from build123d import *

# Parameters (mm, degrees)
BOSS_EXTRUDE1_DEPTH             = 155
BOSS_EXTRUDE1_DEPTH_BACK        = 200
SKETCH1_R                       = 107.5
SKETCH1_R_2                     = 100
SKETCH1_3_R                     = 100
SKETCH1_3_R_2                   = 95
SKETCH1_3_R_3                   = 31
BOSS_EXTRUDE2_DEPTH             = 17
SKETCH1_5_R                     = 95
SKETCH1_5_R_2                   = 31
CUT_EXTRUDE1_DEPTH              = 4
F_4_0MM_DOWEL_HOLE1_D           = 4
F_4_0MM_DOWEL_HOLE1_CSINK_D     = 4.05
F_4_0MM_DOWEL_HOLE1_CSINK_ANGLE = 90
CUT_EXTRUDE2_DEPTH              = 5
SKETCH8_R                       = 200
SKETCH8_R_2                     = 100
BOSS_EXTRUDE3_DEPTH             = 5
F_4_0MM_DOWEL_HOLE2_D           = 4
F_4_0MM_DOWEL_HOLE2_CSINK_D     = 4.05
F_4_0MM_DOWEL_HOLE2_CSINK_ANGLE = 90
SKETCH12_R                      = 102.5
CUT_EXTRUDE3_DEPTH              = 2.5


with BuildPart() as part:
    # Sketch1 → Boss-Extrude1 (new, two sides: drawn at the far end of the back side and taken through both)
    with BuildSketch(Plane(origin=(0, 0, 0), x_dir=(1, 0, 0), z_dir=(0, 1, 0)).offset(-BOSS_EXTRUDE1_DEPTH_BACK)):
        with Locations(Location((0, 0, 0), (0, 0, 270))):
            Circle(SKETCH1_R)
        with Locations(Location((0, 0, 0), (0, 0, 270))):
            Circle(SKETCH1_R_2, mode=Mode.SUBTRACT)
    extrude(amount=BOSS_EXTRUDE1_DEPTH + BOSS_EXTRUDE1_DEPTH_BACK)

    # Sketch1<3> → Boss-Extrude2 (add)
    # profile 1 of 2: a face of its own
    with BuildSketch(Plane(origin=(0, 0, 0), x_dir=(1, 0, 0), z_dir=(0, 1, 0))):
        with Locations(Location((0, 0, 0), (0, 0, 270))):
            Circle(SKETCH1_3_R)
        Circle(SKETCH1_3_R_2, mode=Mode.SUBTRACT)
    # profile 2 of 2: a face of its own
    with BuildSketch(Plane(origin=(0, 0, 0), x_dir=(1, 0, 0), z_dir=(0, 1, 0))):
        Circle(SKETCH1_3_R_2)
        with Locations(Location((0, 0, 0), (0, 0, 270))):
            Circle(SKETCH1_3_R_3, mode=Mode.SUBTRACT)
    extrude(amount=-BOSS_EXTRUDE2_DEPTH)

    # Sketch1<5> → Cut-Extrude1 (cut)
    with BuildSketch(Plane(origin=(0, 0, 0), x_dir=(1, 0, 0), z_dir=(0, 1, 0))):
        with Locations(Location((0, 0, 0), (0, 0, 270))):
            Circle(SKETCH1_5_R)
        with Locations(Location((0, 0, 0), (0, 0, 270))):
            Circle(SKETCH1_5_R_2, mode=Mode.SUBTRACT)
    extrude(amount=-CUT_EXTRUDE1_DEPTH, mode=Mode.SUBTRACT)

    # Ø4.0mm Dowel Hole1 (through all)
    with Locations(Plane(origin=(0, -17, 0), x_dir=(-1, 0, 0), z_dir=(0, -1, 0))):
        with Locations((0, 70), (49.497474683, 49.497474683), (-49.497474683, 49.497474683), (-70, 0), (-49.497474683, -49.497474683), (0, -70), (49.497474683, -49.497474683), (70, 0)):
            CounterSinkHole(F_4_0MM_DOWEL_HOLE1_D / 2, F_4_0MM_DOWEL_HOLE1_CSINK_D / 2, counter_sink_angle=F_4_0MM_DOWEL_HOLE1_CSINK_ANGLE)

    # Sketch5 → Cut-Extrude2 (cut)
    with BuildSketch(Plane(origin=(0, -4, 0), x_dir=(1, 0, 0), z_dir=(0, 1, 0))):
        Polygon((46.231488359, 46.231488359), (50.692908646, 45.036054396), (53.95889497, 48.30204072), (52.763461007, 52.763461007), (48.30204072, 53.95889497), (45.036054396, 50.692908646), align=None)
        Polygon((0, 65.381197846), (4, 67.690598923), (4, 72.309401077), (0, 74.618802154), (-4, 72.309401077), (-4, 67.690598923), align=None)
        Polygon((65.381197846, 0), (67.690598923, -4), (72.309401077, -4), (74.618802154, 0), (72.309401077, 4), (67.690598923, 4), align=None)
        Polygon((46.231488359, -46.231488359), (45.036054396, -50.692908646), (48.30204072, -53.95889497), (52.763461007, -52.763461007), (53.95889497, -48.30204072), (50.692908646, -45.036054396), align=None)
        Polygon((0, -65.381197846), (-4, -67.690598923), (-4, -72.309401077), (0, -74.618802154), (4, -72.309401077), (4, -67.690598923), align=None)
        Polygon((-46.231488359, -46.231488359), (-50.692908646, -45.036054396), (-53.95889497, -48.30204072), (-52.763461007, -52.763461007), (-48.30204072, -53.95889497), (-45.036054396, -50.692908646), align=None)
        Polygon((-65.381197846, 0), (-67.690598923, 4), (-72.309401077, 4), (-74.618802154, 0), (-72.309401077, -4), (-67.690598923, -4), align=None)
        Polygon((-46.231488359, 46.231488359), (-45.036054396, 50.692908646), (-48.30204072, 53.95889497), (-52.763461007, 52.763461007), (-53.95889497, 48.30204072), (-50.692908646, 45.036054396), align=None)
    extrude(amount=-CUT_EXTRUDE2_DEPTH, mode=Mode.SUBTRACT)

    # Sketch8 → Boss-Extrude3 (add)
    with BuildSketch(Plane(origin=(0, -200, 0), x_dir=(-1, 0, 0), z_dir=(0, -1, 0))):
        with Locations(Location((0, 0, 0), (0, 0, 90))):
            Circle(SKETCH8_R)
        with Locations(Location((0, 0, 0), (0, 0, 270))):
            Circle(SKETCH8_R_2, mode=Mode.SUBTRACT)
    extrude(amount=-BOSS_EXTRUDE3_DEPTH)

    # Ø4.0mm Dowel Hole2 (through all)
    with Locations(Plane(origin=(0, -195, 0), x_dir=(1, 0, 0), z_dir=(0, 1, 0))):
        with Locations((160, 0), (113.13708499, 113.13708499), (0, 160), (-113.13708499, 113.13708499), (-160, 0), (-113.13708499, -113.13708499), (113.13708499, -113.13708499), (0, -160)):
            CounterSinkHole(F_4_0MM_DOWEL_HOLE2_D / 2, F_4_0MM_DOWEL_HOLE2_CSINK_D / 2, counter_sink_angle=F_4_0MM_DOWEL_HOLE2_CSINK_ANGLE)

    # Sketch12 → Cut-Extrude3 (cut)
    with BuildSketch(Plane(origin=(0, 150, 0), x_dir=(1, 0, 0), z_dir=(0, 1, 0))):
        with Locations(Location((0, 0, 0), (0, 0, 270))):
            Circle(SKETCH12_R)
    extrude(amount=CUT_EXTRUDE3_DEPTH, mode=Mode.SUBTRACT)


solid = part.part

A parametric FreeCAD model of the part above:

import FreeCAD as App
import Part
import Sketcher

V = App.Vector
Q = App.Units.Quantity


def add_polygon(sketch, points):
    """Adds a closed chain of lines whose ends are joined by coincident constraints."""
    first, n = sketch.GeometryCount, len(points)
    for a, b in zip(points, points[1:] + points[:1]):
        sketch.addGeometry(Part.LineSegment(App.Vector(*a, 0), App.Vector(*b, 0)), False)
    for i in range(n):
        sketch.addConstraint(Sketcher.Constraint("Coincident", first + i, 2, first + (i + 1) % n, 1))

doc = App.newDocument("Part")
params = doc.addObject("Spreadsheet::Sheet", "Params")
for row, (alias, value) in enumerate([
    ("sketch1_diameter", "215 mm"),
    ("sketch1_diameter2", "200 mm"),
    ("pad1_length", "155 mm"),
    ("pad1_length2", "200 mm"),
    ("sketch2_diameter", "200 mm"),
    ("sketch2_diameter2", "62 mm"),
    ("pad2_length", "17 mm"),
    ("sketch3_diameter", "190 mm"),
    ("sketch3_diameter2", "62 mm"),
    ("pocket1_length", "4 mm"),
    ("sketch4_diameter", "4 mm"),
    ("hole_diameter", "4 mm"),
    ("hole_csink_diameter", "4.05 mm"),
    ("pocket2_length", "5 mm"),
    ("sketch6_diameter", "400 mm"),
    ("sketch6_diameter2", "200 mm"),
    ("pad3_length", "5 mm"),
    ("sketch7_diameter", "4 mm"),
    ("hole2_diameter", "4 mm"),
    ("hole2_csink_diameter", "4.05 mm"),
    ("sketch8_diameter", "205 mm"),
    ("pocket3_length", "2.5 mm"),
], start=1):
    params.set(f"A{row}", alias)
    params.set(f"B{row}", "=" + value)
    params.setAlias(f"B{row}", alias)

body = doc.addObject("PartDesign::Body", "Body")

sketch1 = body.newObject("Sketcher::SketchObject", "Sketch")
sketch1.AttachmentSupport = (doc.getObject("XZ_Plane"), [""])
sketch1.MapMode = "FlatFace"
sketch1.addGeometry(Part.Circle(V(0, 0, 0), V(0, 0, 1), 108), False)
sketch1.addGeometry(Part.Circle(V(0, 0, 0), V(0, 0, 1), 100), False)
sketch1.addConstraint(Sketcher.Constraint("Coincident", 0, 3, -1, 1))
sketch1.addConstraint(Sketcher.Constraint("Coincident", 1, 3, -1, 1))
sketch1.addConstraint(Sketcher.Constraint("Diameter", 0, 215.0))
sketch1.addConstraint(Sketcher.Constraint("Diameter", 1, 200.0))
sketch1.setExpression("Constraints[2]", "Params.sketch1_diameter")
sketch1.setExpression("Constraints[3]", "Params.sketch1_diameter2")
pad1 = body.newObject("PartDesign::Pad", "Pad")
pad1.Profile = sketch1
pad1.Type = "TwoLengths"
pad1.setExpression("Length", "Params.pad1_length")
pad1.setExpression("Length2", "Params.pad1_length2")
pad1.Reversed = True

sketch2 = body.newObject("Sketcher::SketchObject", "Sketch001")
sketch2.AttachmentSupport = (doc.getObject("XZ_Plane"), [""])
sketch2.MapMode = "FlatFace"
sketch2.addGeometry(Part.Circle(V(0, 0, 0), V(0, 0, 1), 100), False)
sketch2.addGeometry(Part.Circle(V(0, 0, 0), V(0, 0, 1), 31), False)
sketch2.addConstraint(Sketcher.Constraint("Coincident", 0, 3, -1, 1))
sketch2.addConstraint(Sketcher.Constraint("Coincident", 1, 3, -1, 1))
sketch2.addConstraint(Sketcher.Constraint("Diameter", 0, 200.0))
sketch2.addConstraint(Sketcher.Constraint("Diameter", 1, 62.0))
sketch2.setExpression("Constraints[2]", "Params.sketch2_diameter")
sketch2.setExpression("Constraints[3]", "Params.sketch2_diameter2")
pad2 = body.newObject("PartDesign::Pad", "Pad001")
pad2.Profile = sketch2
pad2.setExpression("Length", "Params.pad2_length")

sketch3 = body.newObject("Sketcher::SketchObject", "Sketch002")
sketch3.AttachmentSupport = (doc.getObject("XZ_Plane"), [""])
sketch3.MapMode = "FlatFace"
sketch3.addGeometry(Part.Circle(V(0, 0, 0), V(0, 0, 1), 95), False)
sketch3.addGeometry(Part.Circle(V(0, 0, 0), V(0, 0, 1), 31), False)
sketch3.addConstraint(Sketcher.Constraint("Coincident", 0, 3, -1, 1))
sketch3.addConstraint(Sketcher.Constraint("Coincident", 1, 3, -1, 1))
sketch3.addConstraint(Sketcher.Constraint("Diameter", 0, 190.0))
sketch3.addConstraint(Sketcher.Constraint("Diameter", 1, 62.0))
sketch3.setExpression("Constraints[2]", "Params.sketch3_diameter")
sketch3.setExpression("Constraints[3]", "Params.sketch3_diameter2")
pocket1 = body.newObject("PartDesign::Pocket", "Pocket")
pocket1.Profile = sketch3
pocket1.setExpression("Length", "Params.pocket1_length")
pocket1.Reversed = True

sketch4 = body.newObject("Sketcher::SketchObject", "Sketch003")
sketch4.AttachmentSupport = (doc.getObject("XZ_Plane"), [""])
sketch4.MapMode = "FlatFace"
sketch4.AttachmentOffset = App.Placement(V(0, 0, 17), App.Rotation())
sketch4.addGeometry(Part.Circle(V(0, -70, 0), V(0, 0, 1), 2), False)
sketch4.addGeometry(Part.Circle(V(-49.5, -49.5, 0), V(0, 0, 1), 2), False)
sketch4.addGeometry(Part.Circle(V(49.5, -49.5, 0), V(0, 0, 1), 2), False)
sketch4.addGeometry(Part.Circle(V(70, 0, 0), V(0, 0, 1), 2), False)
sketch4.addGeometry(Part.Circle(V(49.5, 49.5, 0), V(0, 0, 1), 2), False)
sketch4.addGeometry(Part.Circle(V(0, 70, 0), V(0, 0, 1), 2), False)
sketch4.addGeometry(Part.Circle(V(-49.5, 49.5, 0), V(0, 0, 1), 2), False)
sketch4.addGeometry(Part.Circle(V(-70, 0, 0), V(0, 0, 1), 2), False)
sketch4.addConstraint(Sketcher.Constraint("Equal", 0, 1))
sketch4.addConstraint(Sketcher.Constraint("Equal", 1, 2))
sketch4.addConstraint(Sketcher.Constraint("Equal", 2, 3))
sketch4.addConstraint(Sketcher.Constraint("Equal", 3, 4))
sketch4.addConstraint(Sketcher.Constraint("Equal", 4, 5))
sketch4.addConstraint(Sketcher.Constraint("Equal", 5, 6))
sketch4.addConstraint(Sketcher.Constraint("Equal", 6, 7))
sketch4.addConstraint(Sketcher.Constraint("Symmetric", 1, 3, 4, 3, -1, 1))
sketch4.addConstraint(Sketcher.Constraint("Symmetric", 0, 3, 5, 3, -1, 1))
sketch4.addConstraint(Sketcher.Constraint("Symmetric", 2, 3, 6, 3, -1, 1))
sketch4.addConstraint(Sketcher.Constraint("Symmetric", 3, 3, 7, 3, -1, 1))
sketch4.addConstraint(Sketcher.Constraint("Symmetric", 1, 3, 2, 3, -2))
sketch4.addConstraint(Sketcher.Constraint("PointOnObject", 0, 3, -2))
sketch4.addConstraint(Sketcher.Constraint("PointOnObject", 3, 3, -1))
sketch4.addConstraint(Sketcher.Constraint("Diameter", 0, 4.0))
sketch4.addConstraint(Sketcher.Constraint("DistanceY", 0, 3, -1, 1, 70.0))
sketch4.addConstraint(Sketcher.Constraint("DistanceX", -1, 1, 3, 3, 70.0))
sketch4.addConstraint(Sketcher.Constraint("DistanceX", 1, 3, 2, 3, 98.994949))
sketch4.addConstraint(Sketcher.Constraint("DistanceY", 2, 3, 4, 3, 98.994949))
sketch4.setExpression("Constraints[14]", "Params.sketch4_diameter")
doc.recompute()
hole = body.newObject("PartDesign::Hole", "Hole")
hole.Profile = sketch4
hole.ThreadType = "None"
hole.setExpression("Diameter", "Params.hole_diameter")
hole.DepthType = "ThroughAll"
hole.HoleCutType = "Countersink"
hole.setExpression("HoleCutDiameter", "Params.hole_csink_diameter")
hole.HoleCutCountersinkAngle = 90

sketch5 = body.newObject("Sketcher::SketchObject", "Sketch004")
sketch5.AttachmentSupport = (doc.getObject("XZ_Plane"), [""])
sketch5.MapMode = "FlatFace"
sketch5.AttachmentOffset = App.Placement(V(0, 0, 4), App.Rotation())
add_polygon(sketch5, [(46.2, -46.2), (50.7, -45), (54, -48.3), (52.8, -52.8), (48.3, -54), (45, -50.7)])
add_polygon(sketch5, [(0, -65.4), (4, -67.7), (4, -72.3), (0, -74.6), (-4, -72.3), (-4, -67.7)])
add_polygon(sketch5, [(65.4, 0), (67.7, 4), (72.3, 4), (74.6, 0), (72.3, -4), (67.7, -4)])
add_polygon(sketch5, [(46.2, 46.2), (45, 50.7), (48.3, 54), (52.8, 52.8), (54, 48.3), (50.7, 45)])
add_polygon(sketch5, [(0, 65.4), (-4, 67.7), (-4, 72.3), (0, 74.6), (4, 72.3), (4, 67.7)])
add_polygon(sketch5, [(-46.2, 46.2), (-50.7, 45), (-54, 48.3), (-52.8, 52.8), (-48.3, 54), (-45, 50.7)])
add_polygon(sketch5, [(-65.4, 0), (-67.7, -4), (-72.3, -4), (-74.6, 0), (-72.3, 4), (-67.7, 4)])
add_polygon(sketch5, [(-46.2, -46.2), (-45, -50.7), (-48.3, -54), (-52.8, -52.8), (-54, -48.3), (-50.7, -45)])
sketch5.addConstraint(Sketcher.Constraint("Vertical", 7))
sketch5.addConstraint(Sketcher.Constraint("Vertical", 10))
sketch5.addConstraint(Sketcher.Constraint("Horizontal", 13))
sketch5.addConstraint(Sketcher.Constraint("Horizontal", 16))
sketch5.addConstraint(Sketcher.Constraint("Vertical", 25))
sketch5.addConstraint(Sketcher.Constraint("Vertical", 28))
sketch5.addConstraint(Sketcher.Constraint("Horizontal", 37))
sketch5.addConstraint(Sketcher.Constraint("Horizontal", 40))
sketch5.addConstraint(Sketcher.Constraint("Symmetric", 6, 2, 24, 2, -1, 1))
sketch5.addConstraint(Sketcher.Constraint("Symmetric", 8, 2, 26, 2, -1, 1))
sketch5.addConstraint(Sketcher.Constraint("Symmetric", 9, 2, 27, 2, -1, 1))
sketch5.addConstraint(Sketcher.Constraint("Symmetric", 11, 2, 29, 2, -1, 1))
sketch5.addConstraint(Sketcher.Constraint("Symmetric", 0, 2, 30, 2, -1, 1))
sketch5.addConstraint(Sketcher.Constraint("Symmetric", 1, 2, 31, 2, -1, 1))
sketch5.addConstraint(Sketcher.Constraint("Symmetric", 2, 2, 32, 2, -1, 1))
sketch5.addConstraint(Sketcher.Constraint("Symmetric", 3, 2, 33, 2, -1, 1))
sketch5.addConstraint(Sketcher.Constraint("Symmetric", 4, 2, 34, 2, -1, 1))
sketch5.addConstraint(Sketcher.Constraint("Symmetric", 5, 2, 35, 2, -1, 1))
sketch5.addConstraint(Sketcher.Constraint("Symmetric", 12, 2, 36, 2, -1, 1))
sketch5.addConstraint(Sketcher.Constraint("Symmetric", 14, 2, 38, 2, -1, 1))
sketch5.addConstraint(Sketcher.Constraint("Symmetric", 15, 2, 39, 2, -1, 1))
sketch5.addConstraint(Sketcher.Constraint("Symmetric", 17, 2, 41, 2, -1, 1))
sketch5.addConstraint(Sketcher.Constraint("Symmetric", 18, 2, 42, 2, -1, 1))
sketch5.addConstraint(Sketcher.Constraint("Symmetric", 19, 2, 43, 2, -1, 1))
sketch5.addConstraint(Sketcher.Constraint("Symmetric", 20, 2, 44, 2, -1, 1))
sketch5.addConstraint(Sketcher.Constraint("Symmetric", 21, 2, 45, 2, -1, 1))
sketch5.addConstraint(Sketcher.Constraint("Symmetric", 22, 2, 46, 2, -1, 1))
sketch5.addConstraint(Sketcher.Constraint("Symmetric", 23, 2, 47, 2, -1, 1))
sketch5.addConstraint(Sketcher.Constraint("Symmetric", 7, 2, 9, 2, -2))
sketch5.addConstraint(Sketcher.Constraint("Symmetric", 22, 2, 30, 2, -2))
sketch5.addConstraint(Sketcher.Constraint("Symmetric", 21, 2, 31, 2, -2))
sketch5.addConstraint(Sketcher.Constraint("Symmetric", 20, 2, 32, 2, -2))
sketch5.addConstraint(Sketcher.Constraint("Symmetric", 19, 2, 33, 2, -2))
sketch5.addConstraint(Sketcher.Constraint("Symmetric", 18, 2, 34, 2, -2))
sketch5.addConstraint(Sketcher.Constraint("Symmetric", 23, 2, 35, 2, -2))
sketch5.addConstraint(Sketcher.Constraint("Symmetric", 16, 2, 36, 2, -2))
sketch5.addConstraint(Sketcher.Constraint("PointOnObject", 8, 2, -2))
sketch5.addConstraint(Sketcher.Constraint("PointOnObject", 11, 2, -2))
sketch5.addConstraint(Sketcher.Constraint("PointOnObject", 14, 2, -1))
sketch5.addConstraint(Sketcher.Constraint("PointOnObject", 17, 2, -1))
sketch5.addConstraint(Sketcher.Constraint("Parallel", 0, 3))
sketch5.addConstraint(Sketcher.Constraint("Parallel", 1, 4))
sketch5.addConstraint(Sketcher.Constraint("Parallel", 2, 5))
sketch5.addConstraint(Sketcher.Constraint("Parallel", 6, 9))
sketch5.addConstraint(Sketcher.Constraint("Parallel", 8, 11))
sketch5.addConstraint(Sketcher.Constraint("Perpendicular", 9, 12))
sketch5.addConstraint(Sketcher.Constraint("Perpendicular", 11, 14))
sketch5.addConstraint(Sketcher.Constraint("Parallel", 12, 15))
sketch5.addConstraint(Sketcher.Constraint("Perpendicular", 3, 18))
sketch5.addConstraint(Sketcher.Constraint("Perpendicular", 4, 19))
sketch5.addConstraint(Sketcher.Constraint("Perpendicular", 17, 26))
sketch5.addConstraint(Sketcher.Constraint("Parallel", 26, 29))
sketch5.addConstraint(Sketcher.Constraint("Perpendicular", 29, 38))
sketch5.addConstraint(Sketcher.Constraint("Parallel", 38, 41))
sketch5.addConstraint(Sketcher.Constraint("Equal", 40, 7))
sketch5.addConstraint(Sketcher.Constraint("Equal", 0, 1))
sketch5.addConstraint(Sketcher.Constraint("Equal", 1, 2))
sketch5.addConstraint(Sketcher.Constraint("Equal", 2, 3))
sketch5.addConstraint(Sketcher.Constraint("Equal", 5, 6))
sketch5.addConstraint(Sketcher.Constraint("Equal", 11, 12))
sketch5.addConstraint(Sketcher.Constraint("Angle", 0, Q("15 deg")))
sketch5.addConstraint(Sketcher.Constraint("Angle", 6, Q("-30 deg")))
sketch5.addConstraint(Sketcher.Constraint("DistanceX", -1, 1, 6, 2, 4.0))
sketch5.addConstraint(Sketcher.Constraint("DistanceY", 6, 2, -1, 1, 67.690599))
sketch5.addConstraint(Sketcher.Constraint("DistanceY", 7, 2, -1, 1, 72.309401))
sketch5.addConstraint(Sketcher.Constraint("DistanceX", -1, 1, 12, 2, 67.690599))
sketch5.addConstraint(Sketcher.Constraint("DistanceX", -1, 1, 0, 2, 50.692909))
sketch5.addConstraint(Sketcher.Constraint("DistanceY", 1, 2, -1, 1, 48.302041))
pocket2 = body.newObject("PartDesign::Pocket", "Pocket001")
pocket2.Profile = sketch5
pocket2.setExpression("Length", "Params.pocket2_length")
pocket2.Reversed = True

sketch6 = body.newObject("Sketcher::SketchObject", "Sketch005")
sketch6.AttachmentSupport = (doc.getObject("XZ_Plane"), [""])
sketch6.MapMode = "FlatFace"
sketch6.AttachmentOffset = App.Placement(V(0, 0, 200), App.Rotation())
sketch6.addGeometry(Part.Circle(V(0, 0, 0), V(0, 0, 1), 200), False)
sketch6.addGeometry(Part.Circle(V(0, 0, 0), V(0, 0, 1), 100), False)
sketch6.addConstraint(Sketcher.Constraint("Coincident", 0, 3, -1, 1))
sketch6.addConstraint(Sketcher.Constraint("Coincident", 1, 3, -1, 1))
sketch6.addConstraint(Sketcher.Constraint("Diameter", 0, 400.0))
sketch6.addConstraint(Sketcher.Constraint("Diameter", 1, 200.0))
sketch6.setExpression("Constraints[2]", "Params.sketch6_diameter")
sketch6.setExpression("Constraints[3]", "Params.sketch6_diameter2")
pad3 = body.newObject("PartDesign::Pad", "Pad002")
pad3.Profile = sketch6
pad3.setExpression("Length", "Params.pad3_length")
pad3.Reversed = True

sketch7 = body.newObject("Sketcher::SketchObject", "Sketch006")
sketch7.AttachmentSupport = (doc.getObject("XZ_Plane"), [""])
sketch7.MapMode = "FlatFace"
sketch7.AttachmentOffset = App.Placement(V(0, 0, 195), App.Rotation())
sketch7.addGeometry(Part.Circle(V(160, 0, 0), V(0, 0, 1), 2), False)
sketch7.addGeometry(Part.Circle(V(113.1, -113.1, 0), V(0, 0, 1), 2), False)
sketch7.addGeometry(Part.Circle(V(0, -160, 0), V(0, 0, 1), 2), False)
sketch7.addGeometry(Part.Circle(V(-113.1, -113.1, 0), V(0, 0, 1), 2), False)
sketch7.addGeometry(Part.Circle(V(-160, 0, 0), V(0, 0, 1), 2), False)
sketch7.addGeometry(Part.Circle(V(-113.1, 113.1, 0), V(0, 0, 1), 2), False)
sketch7.addGeometry(Part.Circle(V(113.1, 113.1, 0), V(0, 0, 1), 2), False)
sketch7.addGeometry(Part.Circle(V(0, 160, 0), V(0, 0, 1), 2), False)
sketch7.addConstraint(Sketcher.Constraint("Equal", 0, 1))
sketch7.addConstraint(Sketcher.Constraint("Equal", 1, 2))
sketch7.addConstraint(Sketcher.Constraint("Equal", 2, 3))
sketch7.addConstraint(Sketcher.Constraint("Equal", 3, 4))
sketch7.addConstraint(Sketcher.Constraint("Equal", 4, 5))
sketch7.addConstraint(Sketcher.Constraint("Equal", 5, 6))
sketch7.addConstraint(Sketcher.Constraint("Equal", 6, 7))
sketch7.addConstraint(Sketcher.Constraint("Symmetric", 0, 3, 4, 3, -1, 1))
sketch7.addConstraint(Sketcher.Constraint("Symmetric", 1, 3, 5, 3, -1, 1))
sketch7.addConstraint(Sketcher.Constraint("Symmetric", 3, 3, 6, 3, -1, 1))
sketch7.addConstraint(Sketcher.Constraint("Symmetric", 2, 3, 7, 3, -1, 1))
sketch7.addConstraint(Sketcher.Constraint("Symmetric", 1, 3, 3, 3, -2))
sketch7.addConstraint(Sketcher.Constraint("PointOnObject", 0, 3, -1))
sketch7.addConstraint(Sketcher.Constraint("PointOnObject", 2, 3, -2))
sketch7.addConstraint(Sketcher.Constraint("Diameter", 0, 4.0))
sketch7.addConstraint(Sketcher.Constraint("DistanceX", -1, 1, 0, 3, 160.0))
sketch7.addConstraint(Sketcher.Constraint("DistanceY", 2, 3, -1, 1, 160.0))
sketch7.addConstraint(Sketcher.Constraint("DistanceX", 3, 3, 1, 3, 226.27417))
sketch7.addConstraint(Sketcher.Constraint("DistanceY", 3, 3, 5, 3, 226.27417))
sketch7.setExpression("Constraints[14]", "Params.sketch7_diameter")
doc.recompute()
hole2 = body.newObject("PartDesign::Hole", "Hole001")
hole2.Profile = sketch7
hole2.ThreadType = "None"
hole2.setExpression("Diameter", "Params.hole2_diameter")
hole2.DepthType = "ThroughAll"
hole2.HoleCutType = "Countersink"
hole2.setExpression("HoleCutDiameter", "Params.hole2_csink_diameter")
hole2.HoleCutCountersinkAngle = 90
hole2.Reversed = True

sketch8 = body.newObject("Sketcher::SketchObject", "Sketch007")
sketch8.AttachmentSupport = (doc.getObject("XZ_Plane"), [""])
sketch8.MapMode = "FlatFace"
sketch8.AttachmentOffset = App.Placement(V(0, 0, -150), App.Rotation())
sketch8.addGeometry(Part.Circle(V(0, 0, 0), V(0, 0, 1), 102), False)
sketch8.addConstraint(Sketcher.Constraint("Coincident", 0, 3, -1, 1))
sketch8.addConstraint(Sketcher.Constraint("Diameter", 0, 205.0))
sketch8.setExpression("Constraints[1]", "Params.sketch8_diameter")
pocket3 = body.newObject("PartDesign::Pocket", "Pocket002")
pocket3.Profile = sketch8
pocket3.setExpression("Length", "Params.pocket3_length")

doc.recompute()
